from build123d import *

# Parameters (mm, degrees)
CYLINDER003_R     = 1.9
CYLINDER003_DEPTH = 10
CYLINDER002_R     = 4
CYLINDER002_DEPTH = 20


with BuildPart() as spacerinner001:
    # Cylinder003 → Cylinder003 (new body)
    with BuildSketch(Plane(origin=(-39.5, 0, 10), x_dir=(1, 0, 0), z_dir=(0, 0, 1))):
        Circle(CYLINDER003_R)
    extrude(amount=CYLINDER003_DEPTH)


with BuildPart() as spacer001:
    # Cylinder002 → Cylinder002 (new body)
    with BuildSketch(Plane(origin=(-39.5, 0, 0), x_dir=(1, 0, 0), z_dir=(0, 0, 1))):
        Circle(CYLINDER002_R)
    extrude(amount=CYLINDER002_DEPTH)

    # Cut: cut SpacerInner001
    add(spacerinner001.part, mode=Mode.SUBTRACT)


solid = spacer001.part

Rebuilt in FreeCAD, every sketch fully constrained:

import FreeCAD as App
import Part
import Sketcher

doc = App.newDocument("Part")
body = doc.addObject("PartDesign::Body", "Body")

sketch1 = doc.addObject("Sketcher::SketchObject", "Sketch")
body.addObject(sketch1)
sketch1.AttachmentSupport = (doc.XY_Plane, [""])
sketch1.MapMode = "FlatFace"
sketch1.AttachmentOffset = App.Placement(App.Vector(0, 0, 10), App.Rotation())
sketch1.addGeometry(Part.Circle(App.Vector(-39.5, 0, 0), App.Vector(0, 0, 1), 1.9), False)
sketch1.addConstraint(Sketcher.Constraint("PointOnObject", 0, 3, -1))
sketch1.addConstraint(Sketcher.Constraint("Diameter", 0, 3.8))
sketch1.addConstraint(Sketcher.Constraint("DistanceX", 0, 3, -1, 1, 39.5))
pad1 = doc.addObject("PartDesign::Pad", "Pad")
body.addObject(pad1)
pad1.Profile = sketch1
pad1.Length = 10
body2 = doc.addObject("PartDesign::Body", "Body001")

sketch2 = doc.addObject("Sketcher::SketchObject", "Sketch001")
body2.addObject(sketch2)
sketch2.AttachmentSupport = (doc.getObject("XY_Plane001"), [""])
sketch2.MapMode = "FlatFace"
sketch2.addGeometry(Part.Circle(App.Vector(-39.5, 0, 0), App.Vector(0, 0, 1), 4), False)
sketch2.addConstraint(Sketcher.Constraint("PointOnObject", 0, 3, -1))
sketch2.addConstraint(Sketcher.Constraint("Diameter", 0, 8.0))
sketch2.addConstraint(Sketcher.Constraint("DistanceX", 0, 3, -1, 1, 39.5))
pad2 = doc.addObject("PartDesign::Pad", "Pad001")
body2.addObject(pad2)
pad2.Profile = sketch2
pad2.Length = 20
doc.recompute()

boolean = doc.addObject("PartDesign::Boolean", "Boolean")
body2.addObject(boolean)
boolean.Type = "Cut"
boolean.addObjects([body])

doc.recompute()
